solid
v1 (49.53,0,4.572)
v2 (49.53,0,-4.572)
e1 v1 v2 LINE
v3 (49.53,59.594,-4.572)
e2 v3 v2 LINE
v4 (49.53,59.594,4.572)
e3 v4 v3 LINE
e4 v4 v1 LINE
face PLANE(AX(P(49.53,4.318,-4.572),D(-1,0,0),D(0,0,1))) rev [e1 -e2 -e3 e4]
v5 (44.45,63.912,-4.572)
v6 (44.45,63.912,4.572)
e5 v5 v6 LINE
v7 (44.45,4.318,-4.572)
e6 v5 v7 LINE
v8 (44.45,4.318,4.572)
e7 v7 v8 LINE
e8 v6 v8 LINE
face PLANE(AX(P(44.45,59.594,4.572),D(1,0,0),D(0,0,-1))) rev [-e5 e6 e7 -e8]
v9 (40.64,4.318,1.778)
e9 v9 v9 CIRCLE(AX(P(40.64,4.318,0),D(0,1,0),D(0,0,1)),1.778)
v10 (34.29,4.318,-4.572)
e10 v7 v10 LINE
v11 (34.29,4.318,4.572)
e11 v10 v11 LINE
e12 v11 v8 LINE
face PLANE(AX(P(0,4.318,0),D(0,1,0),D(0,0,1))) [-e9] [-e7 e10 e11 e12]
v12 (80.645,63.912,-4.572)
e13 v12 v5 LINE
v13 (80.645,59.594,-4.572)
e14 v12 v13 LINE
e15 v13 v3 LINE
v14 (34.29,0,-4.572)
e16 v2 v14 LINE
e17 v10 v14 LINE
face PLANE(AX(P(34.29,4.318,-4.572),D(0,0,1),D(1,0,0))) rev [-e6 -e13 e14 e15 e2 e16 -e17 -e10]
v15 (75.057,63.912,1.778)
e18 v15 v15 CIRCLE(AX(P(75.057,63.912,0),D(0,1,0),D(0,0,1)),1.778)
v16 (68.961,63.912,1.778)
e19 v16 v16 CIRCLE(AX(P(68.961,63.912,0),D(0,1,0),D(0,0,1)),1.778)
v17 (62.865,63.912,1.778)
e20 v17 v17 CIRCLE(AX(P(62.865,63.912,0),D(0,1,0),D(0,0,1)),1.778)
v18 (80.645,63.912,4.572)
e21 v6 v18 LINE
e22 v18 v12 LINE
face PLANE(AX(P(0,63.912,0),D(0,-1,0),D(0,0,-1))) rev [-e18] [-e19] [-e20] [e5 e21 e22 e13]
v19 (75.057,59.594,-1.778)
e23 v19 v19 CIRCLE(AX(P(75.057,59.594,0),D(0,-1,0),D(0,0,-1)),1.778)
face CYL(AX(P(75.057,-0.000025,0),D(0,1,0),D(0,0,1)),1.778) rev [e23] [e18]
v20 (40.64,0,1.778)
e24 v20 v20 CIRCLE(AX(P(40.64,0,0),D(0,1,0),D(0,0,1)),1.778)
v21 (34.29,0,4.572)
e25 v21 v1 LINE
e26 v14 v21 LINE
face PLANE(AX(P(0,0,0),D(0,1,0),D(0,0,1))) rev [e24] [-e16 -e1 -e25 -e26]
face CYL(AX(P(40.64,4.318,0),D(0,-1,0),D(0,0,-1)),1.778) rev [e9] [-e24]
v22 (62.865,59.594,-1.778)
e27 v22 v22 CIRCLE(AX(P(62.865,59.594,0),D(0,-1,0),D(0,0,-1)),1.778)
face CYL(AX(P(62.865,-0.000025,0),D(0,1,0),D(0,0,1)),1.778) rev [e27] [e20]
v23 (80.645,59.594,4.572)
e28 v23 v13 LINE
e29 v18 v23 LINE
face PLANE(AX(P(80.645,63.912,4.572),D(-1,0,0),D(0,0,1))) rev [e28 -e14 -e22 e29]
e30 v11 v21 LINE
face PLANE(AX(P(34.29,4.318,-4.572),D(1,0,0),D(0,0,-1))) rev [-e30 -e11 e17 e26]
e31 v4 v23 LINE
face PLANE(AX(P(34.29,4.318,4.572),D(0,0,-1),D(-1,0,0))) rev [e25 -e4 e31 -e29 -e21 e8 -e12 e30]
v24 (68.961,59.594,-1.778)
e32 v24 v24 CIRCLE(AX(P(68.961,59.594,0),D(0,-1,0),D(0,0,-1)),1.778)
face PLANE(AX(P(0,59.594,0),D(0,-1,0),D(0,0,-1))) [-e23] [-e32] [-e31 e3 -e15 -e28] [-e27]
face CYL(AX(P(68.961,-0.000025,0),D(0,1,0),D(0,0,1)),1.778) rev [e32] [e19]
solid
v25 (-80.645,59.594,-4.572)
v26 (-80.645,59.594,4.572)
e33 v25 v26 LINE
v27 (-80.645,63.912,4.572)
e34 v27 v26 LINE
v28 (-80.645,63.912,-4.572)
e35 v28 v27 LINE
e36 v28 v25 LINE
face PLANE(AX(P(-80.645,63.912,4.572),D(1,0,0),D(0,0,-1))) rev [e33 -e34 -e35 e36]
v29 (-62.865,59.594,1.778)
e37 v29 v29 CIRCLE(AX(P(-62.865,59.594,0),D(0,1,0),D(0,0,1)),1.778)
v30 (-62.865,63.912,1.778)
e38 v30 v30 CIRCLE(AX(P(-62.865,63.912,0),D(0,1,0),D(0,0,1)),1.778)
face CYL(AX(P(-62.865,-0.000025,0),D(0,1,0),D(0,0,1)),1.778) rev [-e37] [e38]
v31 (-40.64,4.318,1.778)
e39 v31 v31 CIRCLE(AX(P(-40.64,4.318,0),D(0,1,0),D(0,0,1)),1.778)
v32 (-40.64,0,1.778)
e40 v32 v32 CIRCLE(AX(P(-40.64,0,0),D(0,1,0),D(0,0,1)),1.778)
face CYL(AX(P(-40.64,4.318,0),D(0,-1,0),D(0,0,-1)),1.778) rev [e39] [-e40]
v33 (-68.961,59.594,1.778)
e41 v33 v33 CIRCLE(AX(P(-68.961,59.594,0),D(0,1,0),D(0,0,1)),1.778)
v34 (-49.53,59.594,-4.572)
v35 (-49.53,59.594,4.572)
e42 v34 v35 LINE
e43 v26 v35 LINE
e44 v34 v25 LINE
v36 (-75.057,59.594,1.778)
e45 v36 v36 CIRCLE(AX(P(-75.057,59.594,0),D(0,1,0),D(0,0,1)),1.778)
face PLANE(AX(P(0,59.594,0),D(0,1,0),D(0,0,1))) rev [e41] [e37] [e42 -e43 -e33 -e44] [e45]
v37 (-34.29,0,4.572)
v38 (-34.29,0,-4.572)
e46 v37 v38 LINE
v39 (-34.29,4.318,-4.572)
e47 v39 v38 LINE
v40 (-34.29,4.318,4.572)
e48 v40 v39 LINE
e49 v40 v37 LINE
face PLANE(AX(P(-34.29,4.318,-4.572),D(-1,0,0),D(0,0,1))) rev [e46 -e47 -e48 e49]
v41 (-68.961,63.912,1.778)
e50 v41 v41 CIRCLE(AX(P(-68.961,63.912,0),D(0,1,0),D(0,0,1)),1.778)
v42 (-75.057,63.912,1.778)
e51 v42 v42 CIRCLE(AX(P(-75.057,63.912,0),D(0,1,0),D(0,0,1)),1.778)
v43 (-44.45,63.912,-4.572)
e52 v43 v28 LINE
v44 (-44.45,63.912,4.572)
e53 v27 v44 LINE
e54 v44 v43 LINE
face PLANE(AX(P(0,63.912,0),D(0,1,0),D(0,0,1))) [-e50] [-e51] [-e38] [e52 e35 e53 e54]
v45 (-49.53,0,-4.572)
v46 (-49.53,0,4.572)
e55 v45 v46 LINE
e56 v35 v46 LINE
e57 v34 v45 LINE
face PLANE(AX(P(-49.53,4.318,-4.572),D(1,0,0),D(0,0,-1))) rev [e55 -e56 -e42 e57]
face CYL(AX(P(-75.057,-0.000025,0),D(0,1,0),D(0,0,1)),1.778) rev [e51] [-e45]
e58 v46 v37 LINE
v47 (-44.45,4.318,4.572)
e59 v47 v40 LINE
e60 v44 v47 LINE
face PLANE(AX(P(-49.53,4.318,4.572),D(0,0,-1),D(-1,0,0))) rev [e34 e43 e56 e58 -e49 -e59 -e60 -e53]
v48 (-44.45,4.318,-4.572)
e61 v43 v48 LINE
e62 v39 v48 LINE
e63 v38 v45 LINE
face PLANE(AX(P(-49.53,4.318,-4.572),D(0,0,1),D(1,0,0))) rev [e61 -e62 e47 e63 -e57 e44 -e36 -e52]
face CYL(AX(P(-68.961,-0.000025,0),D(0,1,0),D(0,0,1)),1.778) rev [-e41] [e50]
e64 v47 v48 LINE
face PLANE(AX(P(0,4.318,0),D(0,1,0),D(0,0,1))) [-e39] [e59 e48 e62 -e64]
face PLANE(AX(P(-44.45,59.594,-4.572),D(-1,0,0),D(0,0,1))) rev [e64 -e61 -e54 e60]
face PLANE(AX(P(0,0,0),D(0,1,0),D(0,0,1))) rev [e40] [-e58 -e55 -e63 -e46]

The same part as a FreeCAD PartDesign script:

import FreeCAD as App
import Part
import Sketcher

V = App.Vector
Q = App.Units.Quantity


def add_polygon(sketch, points):
    """Adds a closed chain of lines whose ends are joined by coincident constraints."""
    first, n = sketch.GeometryCount, len(points)
    for a, b in zip(points, points[1:] + points[:1]):
        sketch.addGeometry(Part.LineSegment(App.Vector(*a, 0), App.Vector(*b, 0)), False)
    for i in range(n):
        sketch.addConstraint(Sketcher.Constraint("Coincident", first + i, 2, first + (i + 1) % n, 1))

doc = App.newDocument("Part")
body = doc.addObject("PartDesign::Body", "Body")

# Sketch on XZ plane
sketch1 = doc.addObject("Sketcher::SketchObject", "Sketch")
body.addObject(sketch1)
sketch1.AttachmentSupport = (doc.XZ_Plane, [""])
sketch1.MapMode = "FlatFace"
add_polygon(sketch1, [(-49.53, -4.572), (-49.53, 4.572), (-34.29, 4.572), (-34.29, -4.572)])  # lines 0-3
sketch1.addGeometry(Part.Circle(V(-40.64, 0, 0), V(0, 0, 1), 1.778), False)  # 4
sketch1.addConstraint(Sketcher.Constraint("Vertical", 0))
sketch1.addConstraint(Sketcher.Constraint("Horizontal", 1))
sketch1.addConstraint(Sketcher.Constraint("Vertical", 2))
sketch1.addConstraint(Sketcher.Constraint("Horizontal", 3))
sketch1.addConstraint(Sketcher.Constraint("PointOnObject", 4, 3, -1))
sketch1.addConstraint(Sketcher.Constraint("Diameter", 4, Q("0.14 in")))
sketch1.addConstraint(Sketcher.Constraint("DistanceX", 1, 1, 1, 2, Q("0.6 in")))
sketch1.addConstraint(Sketcher.Constraint("DistanceY", 0, 1, 0, 2, Q("0.36 in")))
sketch1.addConstraint(Sketcher.Constraint("DistanceX", 4, 3, -1, 1, Q("1.6 in")))
sketch1.addConstraint(Sketcher.Constraint("DistanceX", 0, 2, -1, 1, Q("1.95 in")))
sketch1.addConstraint(Sketcher.Constraint("DistanceY", -1, 1, 0, 2, Q("0.18 in")))
pad1 = doc.addObject("PartDesign::Pad", "Pad")
body.addObject(pad1)
pad1.Profile = sketch1
pad1.Length = Q("0.17 in")
pad1.Reversed = True
body2 = doc.addObject("PartDesign::Body", "Body001")

# Sketch on XZ plane
sketch2 = doc.addObject("Sketcher::SketchObject", "Sketch001")
body2.addObject(sketch2)
sketch2.AttachmentSupport = (doc.getObject("XZ_Plane001"), [""])
sketch2.MapMode = "FlatFace"
add_polygon(sketch2, [(34.29, -4.572), (34.29, 4.572), (49.53, 4.572), (49.53, -4.572)])  # lines 0-3
sketch2.addGeometry(Part.Circle(V(40.64, 0, 0), V(0, 0, 1), 1.778), False)  # 4
sketch2.addConstraint(Sketcher.Constraint("Vertical", 0))
sketch2.addConstraint(Sketcher.Constraint("Horizontal", 1))
sketch2.addConstraint(Sketcher.Constraint("Vertical", 2))
sketch2.addConstraint(Sketcher.Constraint("Horizontal", 3))
sketch2.addConstraint(Sketcher.Constraint("PointOnObject", 4, 3, -1))
sketch2.addConstraint(Sketcher.Constraint("Diameter", 4, Q("0.14 in")))
sketch2.addConstraint(Sketcher.Constraint("DistanceX", 1, 1, 1, 2, Q("0.6 in")))
sketch2.addConstraint(Sketcher.Constraint("DistanceY", 0, 1, 0, 2, Q("0.36 in")))
sketch2.addConstraint(Sketcher.Constraint("DistanceX", -1, 1, 4, 3, Q("1.6 in")))
sketch2.addConstraint(Sketcher.Constraint("DistanceX", -1, 1, 0, 2, Q("1.35 in")))
sketch2.addConstraint(Sketcher.Constraint("DistanceY", -1, 1, 0, 2, Q("0.18 in")))
pad2 = doc.addObject("PartDesign::Pad", "Pad001")
body2.addObject(pad2)
pad2.Profile = sketch2
pad2.Length = Q("0.17 in")
pad2.Reversed = True
body.AllowCompound = True
doc.recompute()

boolean = doc.addObject("PartDesign::Boolean", "Boolean")
body.addObject(boolean)
boolean.Type = "Fuse"
boolean.addObjects([body2])

# Sketch on XZ plane
sketch3 = doc.addObject("Sketcher::SketchObject", "Sketch002")
body.addObject(sketch3)
sketch3.AttachmentSupport = (doc.XZ_Plane, [""])
sketch3.MapMode = "FlatFace"
sketch3.AttachmentOffset = App.Placement(V(0, 0, -0.17 * 25.4), App.Rotation())
add_polygon(sketch3, [(-49.53, -4.572), (-49.53, 4.572), (-44.45, 4.572), (-44.45, -4.572)])  # lines 0-3
add_polygon(sketch3, [(44.45, -4.572), (44.45, 4.572), (49.53, 4.572), (49.53, -4.572)])  # lines 4-7
sketch3.addConstraint(Sketcher.Constraint("Vertical", 0))
sketch3.addConstraint(Sketcher.Constraint("Horizontal", 1))
sketch3.addConstraint(Sketcher.Constraint("Vertical", 2))
sketch3.addConstraint(Sketcher.Constraint("Horizontal", 3))
sketch3.addConstraint(Sketcher.Constraint("Vertical", 4))
sketch3.addConstraint(Sketcher.Constraint("Horizontal", 5))
sketch3.addConstraint(Sketcher.Constraint("Vertical", 6))
sketch3.addConstraint(Sketcher.Constraint("Horizontal", 7))
sketch3.addConstraint(Sketcher.Constraint("Symmetric", 2, 2, 4, 2, -1, 1))
sketch3.addConstraint(Sketcher.Constraint("Symmetric", 0, 2, 6, 2, -1, 1))
sketch3.addConstraint(Sketcher.Constraint("Horizontal", 1, 2, 4, 2))
sketch3.addConstraint(Sketcher.Constraint("DistanceX", 1, 1, 1, 2, Q("0.2 in")))
sketch3.addConstraint(Sketcher.Constraint("DistanceY", 0, 1, 0, 2, Q("0.36 in")))
sketch3.addConstraint(Sketcher.Constraint("DistanceX", 1, 2, 4, 2, Q("3.5 in")))
pad3 = doc.addObject("PartDesign::Pad", "Pad002")
body.addObject(pad3)
pad3.Profile = sketch3
pad3.Length = 55.276
pad3.Reversed = True

# Sketch on XZ plane
sketch4 = doc.addObject("Sketcher::SketchObject", "Sketch003")
body.addObject(sketch4)
sketch4.AttachmentSupport = (doc.XZ_Plane, [""])
sketch4.MapMode = "FlatFace"
sketch4.AttachmentOffset = App.Placement(V(0, 0, -59.594), App.Rotation())
add_polygon(sketch4, [(-80.645, -4.572), (-80.645, 4.572), (-44.45, 4.572), (-44.45, -4.572)])  # lines 0-3
add_polygon(sketch4, [(44.45, -4.572), (44.45, 4.572), (80.645, 4.572), (80.645, -4.572)])  # lines 4-7
sketch4.addConstraint(Sketcher.Constraint("Vertical", 0))
sketch4.addConstraint(Sketcher.Constraint("Horizontal", 1))
sketch4.addConstraint(Sketcher.Constraint("Vertical", 2))
sketch4.addConstraint(Sketcher.Constraint("Horizontal", 3))
sketch4.addConstraint(Sketcher.Constraint("Vertical", 4))
sketch4.addConstraint(Sketcher.Constraint("Horizontal", 5))
sketch4.addConstraint(Sketcher.Constraint("Vertical", 6))
sketch4.addConstraint(Sketcher.Constraint("Horizontal", 7))
sketch4.addConstraint(Sketcher.Constraint("Symmetric", 2, 2, 4, 2, -1, 1))
sketch4.addConstraint(Sketcher.Constraint("Symmetric", 0, 2, 6, 2, -1, 1))
sketch4.addConstraint(Sketcher.Constraint("Horizontal", 1, 2, 4, 2))
sketch4.addConstraint(Sketcher.Constraint("DistanceY", 0, 1, 0, 2, Q("0.36 in")))
sketch4.addConstraint(Sketcher.Constraint("DistanceX", 1, 2, 4, 2, Q("3.5 in")))
sketch4.addConstraint(Sketcher.Constraint("DistanceX", 1, 1, 1, 2, Q("1.425 in")))
pad4 = doc.addObject("PartDesign::Pad", "Pad003")
body.addObject(pad4)
pad4.Profile = sketch4
pad4.Length = Q("0.17 in")
pad4.Reversed = True

# Sketch on XZ plane
sketch5 = doc.addObject("Sketcher::SketchObject", "Sketch004")
body.addObject(sketch5)
sketch5.AttachmentSupport = (doc.XZ_Plane, [""])
sketch5.MapMode = "FlatFace"
sketch5.AttachmentOffset = App.Placement(V(0, 0, -63.912), App.Rotation())
sketch5.addGeometry(Part.Circle(V(-75.057, 0, 0), V(0, 0, 1), 1.778), False)
sketch5.addGeometry(Part.Circle(V(75.057, 0, 0), V(0, 0, 1), 1.778), False)
sketch5.addConstraint(Sketcher.Constraint("Equal", 0, 1))
sketch5.addConstraint(Sketcher.Constraint("Symmetric", 0, 3, 1, 3, -1, 1))
sketch5.addConstraint(Sketcher.Constraint("PointOnObject", 0, 3, -1))
sketch5.addConstraint(Sketcher.Constraint("Diameter", 0, Q("0.14 in")))
sketch5.addConstraint(Sketcher.Constraint("DistanceX", 0, 3, 1, 3, Q("5.91 in")))
pocket1 = doc.addObject("PartDesign::Pocket", "Pocket")
body.addObject(pocket1)
pocket1.Profile = sketch5
pocket1.Type = "ThroughAll"
pocket1.Reversed = True

# Sketch on XZ plane
sketch6 = doc.addObject("Sketcher::SketchObject", "Sketch005")
body.addObject(sketch6)
sketch6.AttachmentSupport = (doc.XZ_Plane, [""])
sketch6.MapMode = "FlatFace"
sketch6.AttachmentOffset = App.Placement(V(0, 0, -63.912), App.Rotation())
sketch6.addGeometry(Part.Circle(V(-68.961, 0, 0), V(0, 0, 1), 1.778), False)
sketch6.addGeometry(Part.Circle(V(-62.865, 0, 0), V(0, 0, 1), 1.778), False)
sketch6.addGeometry(Part.Circle(V(62.865, 0, 0), V(0, 0, 1), 1.778), False)
sketch6.addGeometry(Part.Circle(V(68.961, 0, 0), V(0, 0, 1), 1.778), False)
sketch6.addConstraint(Sketcher.Constraint("Equal", 0, 1))
sketch6.addConstraint(Sketcher.Constraint("Equal", 1, 2))
sketch6.addConstraint(Sketcher.Constraint("Equal", 2, 3))
sketch6.addConstraint(Sketcher.Constraint("Symmetric", 1, 3, 2, 3, -1, 1))
sketch6.addConstraint(Sketcher.Constraint("Symmetric", 0, 3, 3, 3, -1, 1))
sketch6.addConstraint(Sketcher.Constraint("PointOnObject", 0, 3, -1))
sketch6.addConstraint(Sketcher.Constraint("PointOnObject", 1, 3, -1))
sketch6.addConstraint(Sketcher.Constraint("Diameter", 0, Q("0.14 in")))
sketch6.addConstraint(Sketcher.Constraint("DistanceX", 0, 3, 1, 3, Q("0.24 in")))
sketch6.addConstraint(Sketcher.Constraint("DistanceX", 1, 3, 2, 3, Q("4.95 in")))
pocket2 = doc.addObject("PartDesign::Pocket", "Pocket001")
body.addObject(pocket2)
pocket2.Profile = sketch6
pocket2.Type = "ThroughAll"
pocket2.Reversed = True

doc.recompute()
